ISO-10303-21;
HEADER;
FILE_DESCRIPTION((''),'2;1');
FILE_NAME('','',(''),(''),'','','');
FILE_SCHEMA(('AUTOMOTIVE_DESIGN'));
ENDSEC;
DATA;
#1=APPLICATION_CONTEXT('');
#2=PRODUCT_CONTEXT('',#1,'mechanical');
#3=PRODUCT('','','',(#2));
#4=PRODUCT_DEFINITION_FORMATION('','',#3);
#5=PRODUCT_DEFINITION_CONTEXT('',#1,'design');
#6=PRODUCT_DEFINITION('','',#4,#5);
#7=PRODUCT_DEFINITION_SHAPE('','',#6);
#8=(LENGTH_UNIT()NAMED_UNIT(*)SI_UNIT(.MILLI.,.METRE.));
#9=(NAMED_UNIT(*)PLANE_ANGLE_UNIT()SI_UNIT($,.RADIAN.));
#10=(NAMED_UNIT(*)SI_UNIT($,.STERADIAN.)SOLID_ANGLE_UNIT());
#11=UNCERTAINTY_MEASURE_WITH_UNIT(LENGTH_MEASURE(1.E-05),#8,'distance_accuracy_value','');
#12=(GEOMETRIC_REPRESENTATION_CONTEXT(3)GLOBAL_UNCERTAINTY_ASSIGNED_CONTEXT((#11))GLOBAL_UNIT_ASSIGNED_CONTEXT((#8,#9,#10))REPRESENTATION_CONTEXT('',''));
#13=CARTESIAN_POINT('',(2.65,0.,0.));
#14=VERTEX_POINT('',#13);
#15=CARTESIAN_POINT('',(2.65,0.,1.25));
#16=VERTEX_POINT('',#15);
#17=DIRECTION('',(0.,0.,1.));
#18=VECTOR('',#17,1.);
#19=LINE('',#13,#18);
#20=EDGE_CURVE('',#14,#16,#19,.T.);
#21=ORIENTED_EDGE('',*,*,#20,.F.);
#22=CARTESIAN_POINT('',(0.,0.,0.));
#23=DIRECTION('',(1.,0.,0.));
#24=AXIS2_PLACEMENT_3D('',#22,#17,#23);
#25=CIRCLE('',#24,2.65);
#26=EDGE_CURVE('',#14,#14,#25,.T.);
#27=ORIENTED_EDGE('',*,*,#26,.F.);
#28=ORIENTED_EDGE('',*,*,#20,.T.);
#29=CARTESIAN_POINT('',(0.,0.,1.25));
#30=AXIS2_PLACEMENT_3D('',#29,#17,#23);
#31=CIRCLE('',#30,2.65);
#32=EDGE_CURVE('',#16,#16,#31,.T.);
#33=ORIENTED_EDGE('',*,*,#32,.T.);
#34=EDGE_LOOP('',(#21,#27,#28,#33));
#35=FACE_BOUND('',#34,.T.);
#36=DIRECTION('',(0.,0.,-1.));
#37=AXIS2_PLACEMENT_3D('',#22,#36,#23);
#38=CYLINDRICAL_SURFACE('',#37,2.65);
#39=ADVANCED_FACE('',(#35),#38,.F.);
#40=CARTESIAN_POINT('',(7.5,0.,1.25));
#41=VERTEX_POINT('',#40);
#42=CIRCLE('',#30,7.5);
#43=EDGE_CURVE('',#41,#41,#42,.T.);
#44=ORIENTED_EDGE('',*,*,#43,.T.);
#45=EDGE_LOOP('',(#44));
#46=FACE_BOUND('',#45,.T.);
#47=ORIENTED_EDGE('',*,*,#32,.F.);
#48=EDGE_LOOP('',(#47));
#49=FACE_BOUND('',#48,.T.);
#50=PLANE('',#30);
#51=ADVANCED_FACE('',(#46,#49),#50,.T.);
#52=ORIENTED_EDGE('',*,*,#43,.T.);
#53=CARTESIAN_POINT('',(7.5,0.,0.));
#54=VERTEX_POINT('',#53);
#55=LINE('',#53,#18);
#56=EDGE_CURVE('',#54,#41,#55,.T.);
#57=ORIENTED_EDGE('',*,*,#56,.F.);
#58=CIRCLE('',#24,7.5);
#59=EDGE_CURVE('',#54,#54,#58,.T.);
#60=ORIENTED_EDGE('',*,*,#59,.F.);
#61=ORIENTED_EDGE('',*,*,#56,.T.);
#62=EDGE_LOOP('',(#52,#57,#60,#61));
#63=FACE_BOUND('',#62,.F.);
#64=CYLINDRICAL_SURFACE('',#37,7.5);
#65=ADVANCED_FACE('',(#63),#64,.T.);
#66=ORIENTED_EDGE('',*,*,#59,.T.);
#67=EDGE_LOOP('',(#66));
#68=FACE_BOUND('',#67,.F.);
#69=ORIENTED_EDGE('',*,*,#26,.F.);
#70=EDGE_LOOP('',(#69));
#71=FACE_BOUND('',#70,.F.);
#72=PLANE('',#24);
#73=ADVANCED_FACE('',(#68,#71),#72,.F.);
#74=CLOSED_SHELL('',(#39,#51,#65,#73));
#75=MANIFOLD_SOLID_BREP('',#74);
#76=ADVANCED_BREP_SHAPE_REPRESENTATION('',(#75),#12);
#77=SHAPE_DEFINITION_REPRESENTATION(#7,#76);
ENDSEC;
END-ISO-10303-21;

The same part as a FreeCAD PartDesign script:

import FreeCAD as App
import Part
import Sketcher

V = App.Vector

doc = App.newDocument("Part")
body = doc.addObject("PartDesign::Body", "Body")

# Sketch on XY plane
sketch1 = doc.addObject("Sketcher::SketchObject", "Sketch")
body.addObject(sketch1)
sketch1.AttachmentSupport = (doc.XY_Plane, [""])
sketch1.MapMode = "FlatFace"
sketch1.addGeometry([
    Part.Circle(V(0, 0, 0), V(0, 0, 1), 7.5),
    Part.Circle(V(0, 0, 0), V(0, 0, 1), 2.6),
], False)
sketch1.addConstraint([
    Sketcher.Constraint("Coincident", 0, 3, -1, 1),
    Sketcher.Constraint("Coincident", 1, 3, -1, 1),
    Sketcher.Constraint("Diameter", 0, 15.0),
    Sketcher.Constraint("Diameter", 1, 5.3),
])
pad1 = doc.addObject("PartDesign::Pad", "Pad")
body.addObject(pad1)
pad1.Profile = sketch1
pad1.Length = 1.25

doc.recompute()
